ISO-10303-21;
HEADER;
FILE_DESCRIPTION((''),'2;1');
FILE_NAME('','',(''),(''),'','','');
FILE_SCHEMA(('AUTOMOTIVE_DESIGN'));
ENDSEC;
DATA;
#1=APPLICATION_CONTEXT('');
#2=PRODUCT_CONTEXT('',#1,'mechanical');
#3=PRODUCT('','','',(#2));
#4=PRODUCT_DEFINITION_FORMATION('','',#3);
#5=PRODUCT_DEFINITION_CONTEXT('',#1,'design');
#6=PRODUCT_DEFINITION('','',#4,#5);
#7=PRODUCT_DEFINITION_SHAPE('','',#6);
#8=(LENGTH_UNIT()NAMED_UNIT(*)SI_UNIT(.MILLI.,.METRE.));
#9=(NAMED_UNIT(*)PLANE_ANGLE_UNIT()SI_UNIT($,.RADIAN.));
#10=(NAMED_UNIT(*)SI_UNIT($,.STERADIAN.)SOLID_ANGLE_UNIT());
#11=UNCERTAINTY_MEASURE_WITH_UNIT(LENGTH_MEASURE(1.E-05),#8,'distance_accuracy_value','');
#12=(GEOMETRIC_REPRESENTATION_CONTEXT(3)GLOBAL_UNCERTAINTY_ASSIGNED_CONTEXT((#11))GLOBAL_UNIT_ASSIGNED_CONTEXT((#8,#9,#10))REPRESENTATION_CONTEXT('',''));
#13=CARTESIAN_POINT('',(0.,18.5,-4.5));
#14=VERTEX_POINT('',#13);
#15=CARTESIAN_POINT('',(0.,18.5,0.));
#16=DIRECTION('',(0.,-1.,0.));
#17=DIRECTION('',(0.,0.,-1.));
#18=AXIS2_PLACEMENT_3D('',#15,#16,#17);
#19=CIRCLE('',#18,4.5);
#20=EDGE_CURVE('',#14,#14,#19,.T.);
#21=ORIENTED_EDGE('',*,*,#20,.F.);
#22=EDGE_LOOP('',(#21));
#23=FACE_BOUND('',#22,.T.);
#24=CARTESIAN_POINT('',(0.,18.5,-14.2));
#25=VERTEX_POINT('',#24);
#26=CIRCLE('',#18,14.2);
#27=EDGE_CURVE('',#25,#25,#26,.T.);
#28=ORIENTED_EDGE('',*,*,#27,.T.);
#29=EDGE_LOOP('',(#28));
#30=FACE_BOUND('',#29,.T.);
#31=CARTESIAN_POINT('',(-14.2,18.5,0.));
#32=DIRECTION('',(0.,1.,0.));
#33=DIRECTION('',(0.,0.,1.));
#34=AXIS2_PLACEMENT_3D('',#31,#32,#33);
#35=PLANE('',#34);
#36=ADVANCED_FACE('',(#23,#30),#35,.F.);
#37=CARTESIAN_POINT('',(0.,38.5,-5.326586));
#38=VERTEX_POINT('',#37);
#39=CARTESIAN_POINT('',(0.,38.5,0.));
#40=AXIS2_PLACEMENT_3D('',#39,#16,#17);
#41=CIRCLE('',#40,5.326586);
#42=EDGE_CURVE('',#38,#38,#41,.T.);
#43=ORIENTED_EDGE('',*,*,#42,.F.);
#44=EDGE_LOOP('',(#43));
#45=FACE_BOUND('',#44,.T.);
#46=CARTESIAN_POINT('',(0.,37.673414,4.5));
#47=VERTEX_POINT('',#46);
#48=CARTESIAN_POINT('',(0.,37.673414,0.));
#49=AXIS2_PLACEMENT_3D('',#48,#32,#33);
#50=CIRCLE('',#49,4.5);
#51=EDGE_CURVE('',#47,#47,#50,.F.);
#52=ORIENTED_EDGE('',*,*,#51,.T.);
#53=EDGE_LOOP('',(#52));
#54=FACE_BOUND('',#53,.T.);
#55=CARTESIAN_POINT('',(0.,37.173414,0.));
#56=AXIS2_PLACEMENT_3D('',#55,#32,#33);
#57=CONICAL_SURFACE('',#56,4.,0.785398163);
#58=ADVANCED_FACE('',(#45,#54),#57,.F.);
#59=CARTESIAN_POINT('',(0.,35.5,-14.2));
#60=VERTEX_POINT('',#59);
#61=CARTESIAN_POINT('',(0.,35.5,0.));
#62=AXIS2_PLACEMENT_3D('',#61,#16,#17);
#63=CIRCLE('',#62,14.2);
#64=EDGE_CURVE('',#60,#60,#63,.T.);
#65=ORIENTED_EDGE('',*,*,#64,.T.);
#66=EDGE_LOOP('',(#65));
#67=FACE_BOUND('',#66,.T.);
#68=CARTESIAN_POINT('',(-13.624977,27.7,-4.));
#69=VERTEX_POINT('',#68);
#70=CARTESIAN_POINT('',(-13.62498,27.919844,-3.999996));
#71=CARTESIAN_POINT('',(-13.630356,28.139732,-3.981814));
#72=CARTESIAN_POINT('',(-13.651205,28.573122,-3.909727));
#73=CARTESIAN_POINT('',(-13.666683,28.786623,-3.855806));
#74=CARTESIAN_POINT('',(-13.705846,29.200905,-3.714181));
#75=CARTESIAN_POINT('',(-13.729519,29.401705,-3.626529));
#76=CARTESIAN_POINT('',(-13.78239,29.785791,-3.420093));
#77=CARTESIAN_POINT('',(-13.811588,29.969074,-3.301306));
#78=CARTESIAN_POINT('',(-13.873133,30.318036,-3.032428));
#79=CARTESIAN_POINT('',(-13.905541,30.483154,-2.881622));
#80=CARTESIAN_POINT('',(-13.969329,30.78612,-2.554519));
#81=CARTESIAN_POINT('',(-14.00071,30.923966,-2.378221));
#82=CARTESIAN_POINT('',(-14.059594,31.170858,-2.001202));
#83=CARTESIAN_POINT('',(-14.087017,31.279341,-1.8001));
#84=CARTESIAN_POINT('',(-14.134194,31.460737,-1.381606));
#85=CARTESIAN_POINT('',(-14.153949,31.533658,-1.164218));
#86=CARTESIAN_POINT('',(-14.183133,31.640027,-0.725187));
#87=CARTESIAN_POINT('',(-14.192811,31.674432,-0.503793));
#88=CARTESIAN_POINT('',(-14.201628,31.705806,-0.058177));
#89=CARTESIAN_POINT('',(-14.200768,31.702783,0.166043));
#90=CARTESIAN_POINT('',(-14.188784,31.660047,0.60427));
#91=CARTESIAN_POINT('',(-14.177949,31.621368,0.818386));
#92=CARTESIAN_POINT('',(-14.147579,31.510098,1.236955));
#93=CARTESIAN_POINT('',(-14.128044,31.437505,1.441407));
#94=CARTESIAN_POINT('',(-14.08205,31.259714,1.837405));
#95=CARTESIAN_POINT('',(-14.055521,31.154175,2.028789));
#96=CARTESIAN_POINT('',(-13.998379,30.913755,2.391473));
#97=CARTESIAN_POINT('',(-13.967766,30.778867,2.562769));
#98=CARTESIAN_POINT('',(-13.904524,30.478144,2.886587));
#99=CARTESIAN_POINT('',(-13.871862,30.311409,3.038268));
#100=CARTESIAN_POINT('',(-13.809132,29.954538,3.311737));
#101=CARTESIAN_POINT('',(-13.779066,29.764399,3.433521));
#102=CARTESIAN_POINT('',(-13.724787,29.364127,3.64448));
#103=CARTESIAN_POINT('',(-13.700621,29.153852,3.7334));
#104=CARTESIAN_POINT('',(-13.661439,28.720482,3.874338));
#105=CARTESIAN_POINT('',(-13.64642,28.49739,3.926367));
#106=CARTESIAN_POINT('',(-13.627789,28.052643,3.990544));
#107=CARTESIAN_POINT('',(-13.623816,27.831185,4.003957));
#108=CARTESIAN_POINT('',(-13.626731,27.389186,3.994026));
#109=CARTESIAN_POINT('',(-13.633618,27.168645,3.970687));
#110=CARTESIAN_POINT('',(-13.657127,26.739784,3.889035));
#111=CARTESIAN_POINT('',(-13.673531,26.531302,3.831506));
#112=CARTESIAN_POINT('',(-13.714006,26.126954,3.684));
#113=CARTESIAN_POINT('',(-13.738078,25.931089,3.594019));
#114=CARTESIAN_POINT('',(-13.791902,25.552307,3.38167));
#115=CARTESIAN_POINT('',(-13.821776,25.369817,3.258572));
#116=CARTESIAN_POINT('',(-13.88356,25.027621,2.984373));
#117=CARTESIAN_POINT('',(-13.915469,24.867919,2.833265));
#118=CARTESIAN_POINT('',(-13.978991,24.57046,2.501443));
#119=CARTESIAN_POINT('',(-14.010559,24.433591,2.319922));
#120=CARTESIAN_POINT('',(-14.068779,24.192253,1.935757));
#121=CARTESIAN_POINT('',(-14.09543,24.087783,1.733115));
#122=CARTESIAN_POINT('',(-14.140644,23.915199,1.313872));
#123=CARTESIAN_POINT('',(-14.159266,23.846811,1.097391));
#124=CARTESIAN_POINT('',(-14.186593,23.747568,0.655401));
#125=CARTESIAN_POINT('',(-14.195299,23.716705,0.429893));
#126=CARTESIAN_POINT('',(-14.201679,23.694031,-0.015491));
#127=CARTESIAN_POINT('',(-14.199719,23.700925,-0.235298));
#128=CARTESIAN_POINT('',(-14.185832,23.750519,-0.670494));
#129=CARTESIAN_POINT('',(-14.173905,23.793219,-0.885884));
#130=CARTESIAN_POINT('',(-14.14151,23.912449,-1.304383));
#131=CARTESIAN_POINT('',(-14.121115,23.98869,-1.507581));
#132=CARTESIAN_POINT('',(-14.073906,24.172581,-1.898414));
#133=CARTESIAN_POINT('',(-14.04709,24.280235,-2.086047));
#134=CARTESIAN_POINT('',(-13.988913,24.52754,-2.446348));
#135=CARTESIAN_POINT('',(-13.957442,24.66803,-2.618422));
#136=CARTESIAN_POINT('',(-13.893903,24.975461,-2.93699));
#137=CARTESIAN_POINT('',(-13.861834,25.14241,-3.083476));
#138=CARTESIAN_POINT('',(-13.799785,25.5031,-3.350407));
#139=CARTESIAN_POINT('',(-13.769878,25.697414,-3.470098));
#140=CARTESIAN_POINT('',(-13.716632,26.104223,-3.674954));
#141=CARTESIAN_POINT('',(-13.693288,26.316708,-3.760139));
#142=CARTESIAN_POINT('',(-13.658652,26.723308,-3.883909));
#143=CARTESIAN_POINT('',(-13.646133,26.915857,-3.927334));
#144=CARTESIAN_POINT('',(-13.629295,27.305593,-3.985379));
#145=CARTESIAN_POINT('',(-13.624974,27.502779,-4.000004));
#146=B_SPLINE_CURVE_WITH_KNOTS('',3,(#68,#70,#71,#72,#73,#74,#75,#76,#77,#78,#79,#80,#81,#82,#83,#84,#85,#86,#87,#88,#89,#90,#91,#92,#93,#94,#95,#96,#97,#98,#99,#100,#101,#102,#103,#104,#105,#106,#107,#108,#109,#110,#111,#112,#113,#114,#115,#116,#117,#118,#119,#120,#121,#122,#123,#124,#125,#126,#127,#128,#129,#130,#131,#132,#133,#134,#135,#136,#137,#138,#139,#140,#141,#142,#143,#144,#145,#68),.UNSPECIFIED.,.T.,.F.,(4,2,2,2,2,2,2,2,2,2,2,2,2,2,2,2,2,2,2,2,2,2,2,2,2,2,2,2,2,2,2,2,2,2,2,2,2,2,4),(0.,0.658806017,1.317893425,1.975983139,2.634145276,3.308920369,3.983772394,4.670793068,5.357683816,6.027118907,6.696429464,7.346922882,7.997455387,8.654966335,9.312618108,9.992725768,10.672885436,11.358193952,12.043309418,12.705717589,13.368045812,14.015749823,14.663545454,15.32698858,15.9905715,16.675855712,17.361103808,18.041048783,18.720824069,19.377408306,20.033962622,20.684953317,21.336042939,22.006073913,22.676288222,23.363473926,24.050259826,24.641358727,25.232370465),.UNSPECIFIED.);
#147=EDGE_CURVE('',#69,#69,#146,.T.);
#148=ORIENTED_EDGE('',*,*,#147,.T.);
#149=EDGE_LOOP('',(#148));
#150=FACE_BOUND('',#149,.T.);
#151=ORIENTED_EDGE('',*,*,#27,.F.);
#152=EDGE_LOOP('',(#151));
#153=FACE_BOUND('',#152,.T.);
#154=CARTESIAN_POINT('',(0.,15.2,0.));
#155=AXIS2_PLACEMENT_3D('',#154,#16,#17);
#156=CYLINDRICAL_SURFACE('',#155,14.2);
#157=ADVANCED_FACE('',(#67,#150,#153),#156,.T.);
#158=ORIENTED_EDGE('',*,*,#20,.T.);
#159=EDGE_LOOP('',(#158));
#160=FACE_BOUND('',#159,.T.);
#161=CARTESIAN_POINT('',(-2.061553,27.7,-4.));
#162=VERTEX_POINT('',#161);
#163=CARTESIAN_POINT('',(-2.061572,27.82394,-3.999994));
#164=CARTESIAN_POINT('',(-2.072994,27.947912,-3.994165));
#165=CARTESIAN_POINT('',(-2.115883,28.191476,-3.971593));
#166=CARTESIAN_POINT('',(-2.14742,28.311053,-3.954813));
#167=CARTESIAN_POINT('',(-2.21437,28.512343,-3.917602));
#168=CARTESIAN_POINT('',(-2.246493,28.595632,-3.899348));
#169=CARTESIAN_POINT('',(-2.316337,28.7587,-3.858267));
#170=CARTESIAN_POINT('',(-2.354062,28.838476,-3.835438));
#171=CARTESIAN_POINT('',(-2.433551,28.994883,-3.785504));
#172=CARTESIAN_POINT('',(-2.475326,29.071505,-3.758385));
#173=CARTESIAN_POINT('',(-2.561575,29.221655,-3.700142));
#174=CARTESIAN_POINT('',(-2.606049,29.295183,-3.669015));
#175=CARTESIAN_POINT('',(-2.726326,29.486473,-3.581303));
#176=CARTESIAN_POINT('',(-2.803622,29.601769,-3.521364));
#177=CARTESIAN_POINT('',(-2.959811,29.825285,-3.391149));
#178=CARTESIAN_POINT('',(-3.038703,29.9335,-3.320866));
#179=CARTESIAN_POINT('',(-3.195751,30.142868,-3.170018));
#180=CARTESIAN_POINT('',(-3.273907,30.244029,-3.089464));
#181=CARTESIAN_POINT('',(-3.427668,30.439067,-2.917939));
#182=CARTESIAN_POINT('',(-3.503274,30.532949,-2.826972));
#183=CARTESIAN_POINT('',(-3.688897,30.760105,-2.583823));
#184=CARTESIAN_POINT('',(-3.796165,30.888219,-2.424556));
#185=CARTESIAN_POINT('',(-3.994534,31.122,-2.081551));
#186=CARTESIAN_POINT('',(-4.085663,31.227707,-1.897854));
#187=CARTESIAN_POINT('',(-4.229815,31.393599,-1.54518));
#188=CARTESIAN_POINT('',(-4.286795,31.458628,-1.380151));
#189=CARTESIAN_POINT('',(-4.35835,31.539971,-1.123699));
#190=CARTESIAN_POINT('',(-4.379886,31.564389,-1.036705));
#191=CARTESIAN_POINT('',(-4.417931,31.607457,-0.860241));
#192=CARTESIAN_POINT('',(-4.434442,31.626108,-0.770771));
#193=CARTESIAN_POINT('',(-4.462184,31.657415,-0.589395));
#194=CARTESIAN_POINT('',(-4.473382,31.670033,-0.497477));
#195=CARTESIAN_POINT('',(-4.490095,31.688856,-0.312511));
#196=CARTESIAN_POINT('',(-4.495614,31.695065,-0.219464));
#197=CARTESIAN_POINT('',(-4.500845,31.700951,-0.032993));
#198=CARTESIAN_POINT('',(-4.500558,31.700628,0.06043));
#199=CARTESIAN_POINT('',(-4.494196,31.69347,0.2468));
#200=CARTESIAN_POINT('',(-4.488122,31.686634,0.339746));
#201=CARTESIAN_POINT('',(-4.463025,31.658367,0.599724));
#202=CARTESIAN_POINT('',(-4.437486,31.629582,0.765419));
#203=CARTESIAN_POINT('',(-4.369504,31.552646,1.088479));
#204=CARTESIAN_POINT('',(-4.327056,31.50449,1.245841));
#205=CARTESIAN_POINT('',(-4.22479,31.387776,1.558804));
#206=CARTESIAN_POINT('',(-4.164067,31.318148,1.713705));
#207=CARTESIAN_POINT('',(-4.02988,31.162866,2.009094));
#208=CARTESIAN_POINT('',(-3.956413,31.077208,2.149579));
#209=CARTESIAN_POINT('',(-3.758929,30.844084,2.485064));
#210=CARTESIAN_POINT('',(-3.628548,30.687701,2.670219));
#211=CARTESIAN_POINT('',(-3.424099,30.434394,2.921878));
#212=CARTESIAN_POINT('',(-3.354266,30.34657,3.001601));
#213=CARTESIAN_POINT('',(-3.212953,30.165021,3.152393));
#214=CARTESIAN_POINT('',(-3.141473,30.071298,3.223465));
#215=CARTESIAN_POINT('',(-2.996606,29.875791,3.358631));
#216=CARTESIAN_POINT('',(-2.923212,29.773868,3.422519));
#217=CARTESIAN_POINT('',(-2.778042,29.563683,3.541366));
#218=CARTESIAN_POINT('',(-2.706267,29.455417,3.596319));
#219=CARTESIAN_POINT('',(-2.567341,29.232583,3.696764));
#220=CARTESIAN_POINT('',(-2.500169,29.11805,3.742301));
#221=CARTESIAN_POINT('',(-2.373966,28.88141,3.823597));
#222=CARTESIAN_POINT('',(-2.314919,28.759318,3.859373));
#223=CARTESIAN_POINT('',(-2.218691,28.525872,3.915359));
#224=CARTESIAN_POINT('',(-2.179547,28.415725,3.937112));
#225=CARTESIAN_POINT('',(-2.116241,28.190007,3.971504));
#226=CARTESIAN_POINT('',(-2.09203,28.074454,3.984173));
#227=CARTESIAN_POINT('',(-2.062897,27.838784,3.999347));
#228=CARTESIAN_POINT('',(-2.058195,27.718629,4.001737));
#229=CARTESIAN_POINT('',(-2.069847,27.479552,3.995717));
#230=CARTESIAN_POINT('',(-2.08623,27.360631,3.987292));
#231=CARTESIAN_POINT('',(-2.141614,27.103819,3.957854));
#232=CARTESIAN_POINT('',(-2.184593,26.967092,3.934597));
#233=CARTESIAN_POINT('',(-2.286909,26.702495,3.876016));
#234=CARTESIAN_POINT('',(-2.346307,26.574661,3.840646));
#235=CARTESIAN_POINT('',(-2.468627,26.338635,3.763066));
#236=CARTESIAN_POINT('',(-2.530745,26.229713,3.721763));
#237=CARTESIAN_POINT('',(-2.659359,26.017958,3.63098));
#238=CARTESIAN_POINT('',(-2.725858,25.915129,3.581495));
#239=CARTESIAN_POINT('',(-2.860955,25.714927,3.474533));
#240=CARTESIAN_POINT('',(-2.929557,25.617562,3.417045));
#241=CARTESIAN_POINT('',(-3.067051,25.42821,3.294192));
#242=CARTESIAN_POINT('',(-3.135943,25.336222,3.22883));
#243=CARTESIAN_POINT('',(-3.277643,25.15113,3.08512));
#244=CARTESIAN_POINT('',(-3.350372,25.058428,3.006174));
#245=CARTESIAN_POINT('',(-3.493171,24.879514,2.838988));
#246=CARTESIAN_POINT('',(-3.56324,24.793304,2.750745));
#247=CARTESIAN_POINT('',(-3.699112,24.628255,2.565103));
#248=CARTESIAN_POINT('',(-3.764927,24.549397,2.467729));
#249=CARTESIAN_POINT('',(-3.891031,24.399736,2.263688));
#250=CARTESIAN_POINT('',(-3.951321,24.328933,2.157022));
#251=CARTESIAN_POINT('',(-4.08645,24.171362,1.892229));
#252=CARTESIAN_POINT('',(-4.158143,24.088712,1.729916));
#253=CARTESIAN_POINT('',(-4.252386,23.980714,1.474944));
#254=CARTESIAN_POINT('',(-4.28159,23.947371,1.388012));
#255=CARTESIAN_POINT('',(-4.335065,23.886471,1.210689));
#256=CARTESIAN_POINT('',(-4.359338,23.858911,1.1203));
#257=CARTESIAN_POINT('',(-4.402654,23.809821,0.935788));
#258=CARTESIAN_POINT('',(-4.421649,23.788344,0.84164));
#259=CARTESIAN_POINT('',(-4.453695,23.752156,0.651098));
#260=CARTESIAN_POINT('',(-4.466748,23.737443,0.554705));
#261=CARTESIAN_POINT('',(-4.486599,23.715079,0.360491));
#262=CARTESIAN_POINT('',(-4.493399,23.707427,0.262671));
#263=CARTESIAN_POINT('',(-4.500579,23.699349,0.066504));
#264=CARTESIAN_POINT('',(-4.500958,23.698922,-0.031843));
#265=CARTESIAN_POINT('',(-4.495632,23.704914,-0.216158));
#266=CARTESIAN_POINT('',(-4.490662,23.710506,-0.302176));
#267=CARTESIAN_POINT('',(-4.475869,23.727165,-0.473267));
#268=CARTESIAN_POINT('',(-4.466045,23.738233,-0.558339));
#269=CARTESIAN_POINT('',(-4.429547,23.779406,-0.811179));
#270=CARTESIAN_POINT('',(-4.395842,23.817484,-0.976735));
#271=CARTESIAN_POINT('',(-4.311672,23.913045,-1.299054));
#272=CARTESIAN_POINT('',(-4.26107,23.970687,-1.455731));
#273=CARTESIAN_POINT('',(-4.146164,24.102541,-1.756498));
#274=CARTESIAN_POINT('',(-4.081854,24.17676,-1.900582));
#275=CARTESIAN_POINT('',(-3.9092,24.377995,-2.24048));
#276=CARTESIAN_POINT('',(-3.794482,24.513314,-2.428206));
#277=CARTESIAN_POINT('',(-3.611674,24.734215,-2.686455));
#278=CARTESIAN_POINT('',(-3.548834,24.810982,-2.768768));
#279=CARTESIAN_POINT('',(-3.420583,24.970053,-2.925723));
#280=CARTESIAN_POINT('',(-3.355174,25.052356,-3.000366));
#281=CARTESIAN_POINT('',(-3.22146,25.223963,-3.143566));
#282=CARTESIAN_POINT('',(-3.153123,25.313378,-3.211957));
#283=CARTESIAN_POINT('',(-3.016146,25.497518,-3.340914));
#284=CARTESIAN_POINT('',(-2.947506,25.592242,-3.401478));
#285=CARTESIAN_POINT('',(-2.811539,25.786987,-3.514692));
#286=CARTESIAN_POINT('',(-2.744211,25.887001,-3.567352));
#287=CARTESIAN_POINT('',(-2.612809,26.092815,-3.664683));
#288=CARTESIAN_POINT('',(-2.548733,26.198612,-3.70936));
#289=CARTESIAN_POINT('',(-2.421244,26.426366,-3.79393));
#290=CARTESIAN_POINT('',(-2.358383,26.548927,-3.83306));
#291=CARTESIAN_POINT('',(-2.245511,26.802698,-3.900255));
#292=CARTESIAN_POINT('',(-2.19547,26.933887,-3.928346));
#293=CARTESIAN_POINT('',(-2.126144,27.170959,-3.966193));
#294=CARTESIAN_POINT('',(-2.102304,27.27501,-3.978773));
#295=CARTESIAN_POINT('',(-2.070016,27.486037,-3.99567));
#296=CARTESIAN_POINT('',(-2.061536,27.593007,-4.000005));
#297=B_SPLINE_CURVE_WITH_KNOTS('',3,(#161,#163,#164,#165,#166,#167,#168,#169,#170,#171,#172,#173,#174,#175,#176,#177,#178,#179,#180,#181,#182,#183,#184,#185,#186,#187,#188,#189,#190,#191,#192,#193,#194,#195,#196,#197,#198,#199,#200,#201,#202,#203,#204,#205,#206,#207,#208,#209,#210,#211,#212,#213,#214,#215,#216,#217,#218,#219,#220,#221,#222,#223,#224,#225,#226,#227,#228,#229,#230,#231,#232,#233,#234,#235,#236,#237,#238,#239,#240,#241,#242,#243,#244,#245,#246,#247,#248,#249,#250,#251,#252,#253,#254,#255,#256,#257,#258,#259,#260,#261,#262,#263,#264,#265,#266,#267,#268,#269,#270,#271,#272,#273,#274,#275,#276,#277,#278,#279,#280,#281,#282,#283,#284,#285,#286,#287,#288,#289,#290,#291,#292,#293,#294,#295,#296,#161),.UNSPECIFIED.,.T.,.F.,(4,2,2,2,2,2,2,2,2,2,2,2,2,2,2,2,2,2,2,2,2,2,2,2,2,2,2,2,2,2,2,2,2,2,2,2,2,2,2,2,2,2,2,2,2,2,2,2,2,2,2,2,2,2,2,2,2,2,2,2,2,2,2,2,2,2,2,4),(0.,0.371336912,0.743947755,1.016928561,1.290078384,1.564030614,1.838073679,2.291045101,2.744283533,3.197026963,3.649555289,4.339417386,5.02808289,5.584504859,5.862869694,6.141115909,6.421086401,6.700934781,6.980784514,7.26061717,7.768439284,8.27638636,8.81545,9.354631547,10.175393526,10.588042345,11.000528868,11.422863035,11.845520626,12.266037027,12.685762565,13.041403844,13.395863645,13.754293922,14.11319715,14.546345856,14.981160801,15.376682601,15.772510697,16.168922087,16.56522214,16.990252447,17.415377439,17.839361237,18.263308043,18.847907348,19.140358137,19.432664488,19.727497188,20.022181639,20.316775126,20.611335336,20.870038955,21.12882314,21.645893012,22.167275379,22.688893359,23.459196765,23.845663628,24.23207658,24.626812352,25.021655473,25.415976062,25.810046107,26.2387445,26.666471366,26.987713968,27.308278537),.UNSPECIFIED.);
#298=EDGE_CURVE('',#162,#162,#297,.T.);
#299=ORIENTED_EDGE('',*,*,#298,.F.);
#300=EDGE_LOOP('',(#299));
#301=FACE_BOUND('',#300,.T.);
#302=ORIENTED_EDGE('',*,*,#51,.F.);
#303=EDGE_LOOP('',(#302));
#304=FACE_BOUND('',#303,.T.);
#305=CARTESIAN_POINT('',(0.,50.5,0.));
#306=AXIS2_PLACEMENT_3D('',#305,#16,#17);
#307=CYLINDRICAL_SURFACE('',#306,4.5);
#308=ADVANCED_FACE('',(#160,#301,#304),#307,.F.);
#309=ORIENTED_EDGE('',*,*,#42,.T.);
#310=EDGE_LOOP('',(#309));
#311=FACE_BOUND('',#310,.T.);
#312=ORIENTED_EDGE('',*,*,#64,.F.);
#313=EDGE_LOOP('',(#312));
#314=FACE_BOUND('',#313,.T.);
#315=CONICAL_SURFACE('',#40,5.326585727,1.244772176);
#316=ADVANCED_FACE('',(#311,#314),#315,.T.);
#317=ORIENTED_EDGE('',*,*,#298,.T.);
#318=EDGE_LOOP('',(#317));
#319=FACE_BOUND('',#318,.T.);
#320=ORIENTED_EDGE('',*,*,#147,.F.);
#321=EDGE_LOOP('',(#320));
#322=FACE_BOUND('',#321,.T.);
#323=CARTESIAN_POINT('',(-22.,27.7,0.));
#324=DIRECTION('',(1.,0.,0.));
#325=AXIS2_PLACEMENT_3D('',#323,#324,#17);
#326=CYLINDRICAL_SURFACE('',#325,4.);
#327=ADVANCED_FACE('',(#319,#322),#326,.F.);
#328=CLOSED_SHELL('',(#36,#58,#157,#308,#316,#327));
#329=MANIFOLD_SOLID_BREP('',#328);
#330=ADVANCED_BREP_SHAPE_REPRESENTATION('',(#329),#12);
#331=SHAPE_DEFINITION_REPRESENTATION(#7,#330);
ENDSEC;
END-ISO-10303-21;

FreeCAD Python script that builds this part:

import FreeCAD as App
import Part
import Sketcher

V = App.Vector
Q = App.Units.Quantity


def add_polygon(sketch, points):
    """Adds a closed chain of lines whose ends are joined by coincident constraints."""
    first, n = sketch.GeometryCount, len(points)
    for a, b in zip(points, points[1:] + points[:1]):
        sketch.addGeometry(Part.LineSegment(App.Vector(*a, 0), App.Vector(*b, 0)), False)
    for i in range(n):
        sketch.addConstraint(Sketcher.Constraint("Coincident", first + i, 2, first + (i + 1) % n, 1))

doc = App.newDocument("Part")
body = doc.addObject("PartDesign::Body", "Body")

# Sketch on XY plane
sketch1 = body.newObject("Sketcher::SketchObject", "Sketch")
sketch1.AttachmentSupport = (doc.getObject("XY_Plane"), [""])
sketch1.MapMode = "FlatFace"
add_polygon(sketch1, [(-14.2, 18.5), (-4, 18.5), (-4, 37.173414), (-5.326586, 38.5), (-14.2, 35.5)])  # lines 0-4
sketch1.addConstraint(Sketcher.Constraint("Horizontal", 0))
sketch1.addConstraint(Sketcher.Constraint("Vertical", 1))
sketch1.addConstraint(Sketcher.Constraint("Vertical", 4))
sketch1.addConstraint(Sketcher.Constraint("DistanceY", 4, 2, 4, 1, 17.0))
sketch1.addConstraint(Sketcher.Constraint("Angle", 2, Q("135 deg")))
sketch1.addConstraint(Sketcher.Constraint("DistanceX", 0, 1, 0, 2, 10.2))
sketch1.addConstraint(Sketcher.Constraint("DistanceX", 0, 2, -1, 1, 4.0))
sketch1.addConstraint(Sketcher.Constraint("DistanceY", 0, 2, 2, 2, 20.0))
sketch1.addConstraint(Sketcher.Constraint("DistanceY", -1, 1, 0, 2, 18.5))
sketch1.addConstraint(Sketcher.Constraint("Distance", 3, 9.366829))
revolution = body.newObject("PartDesign::Revolution", "Revolution")
revolution.Profile = sketch1
revolution.ReferenceAxis = (sketch1, ["V_Axis"])
revolution.Angle = 360

# Sketch on YZ plane
sketch2 = body.newObject("Sketcher::SketchObject", "Sketch001")
sketch2.AttachmentSupport = (doc.getObject("YZ_Plane"), [""])
sketch2.MapMode = "FlatFace"
sketch2.addGeometry(Part.Circle(V(27.7, 0, 0), V(0, 0, 1), 4), False)
sketch2.addConstraint(Sketcher.Constraint("PointOnObject", 0, 3, -1))
sketch2.addConstraint(Sketcher.Constraint("Diameter", 0, 8.0))
sketch2.addConstraint(Sketcher.Constraint("DistanceX", -1, 1, 0, 3, 27.7))
pocket1 = body.newObject("PartDesign::Pocket", "Pocket")
pocket1.Profile = sketch2
pocket1.Length = 22

# Sketch on XZ plane
sketch3 = body.newObject("Sketcher::SketchObject", "Sketch002")
sketch3.AttachmentSupport = (doc.getObject("XZ_Plane"), [""])
sketch3.MapMode = "FlatFace"
sketch3.AttachmentOffset = App.Placement(V(0, 0, -18.5), App.Rotation())
sketch3.addGeometry(Part.Circle(V(0, 0, 0), V(0, 0, 1), 4.5), False)
sketch3.addConstraint(Sketcher.Constraint("Coincident", 0, 3, -1, 1))
sketch3.addConstraint(Sketcher.Constraint("Diameter", 0, 9.0))
pocket2 = body.newObject("PartDesign::Pocket", "Pocket001")
pocket2.Profile = sketch3
pocket2.Length = 32

doc.recompute()
